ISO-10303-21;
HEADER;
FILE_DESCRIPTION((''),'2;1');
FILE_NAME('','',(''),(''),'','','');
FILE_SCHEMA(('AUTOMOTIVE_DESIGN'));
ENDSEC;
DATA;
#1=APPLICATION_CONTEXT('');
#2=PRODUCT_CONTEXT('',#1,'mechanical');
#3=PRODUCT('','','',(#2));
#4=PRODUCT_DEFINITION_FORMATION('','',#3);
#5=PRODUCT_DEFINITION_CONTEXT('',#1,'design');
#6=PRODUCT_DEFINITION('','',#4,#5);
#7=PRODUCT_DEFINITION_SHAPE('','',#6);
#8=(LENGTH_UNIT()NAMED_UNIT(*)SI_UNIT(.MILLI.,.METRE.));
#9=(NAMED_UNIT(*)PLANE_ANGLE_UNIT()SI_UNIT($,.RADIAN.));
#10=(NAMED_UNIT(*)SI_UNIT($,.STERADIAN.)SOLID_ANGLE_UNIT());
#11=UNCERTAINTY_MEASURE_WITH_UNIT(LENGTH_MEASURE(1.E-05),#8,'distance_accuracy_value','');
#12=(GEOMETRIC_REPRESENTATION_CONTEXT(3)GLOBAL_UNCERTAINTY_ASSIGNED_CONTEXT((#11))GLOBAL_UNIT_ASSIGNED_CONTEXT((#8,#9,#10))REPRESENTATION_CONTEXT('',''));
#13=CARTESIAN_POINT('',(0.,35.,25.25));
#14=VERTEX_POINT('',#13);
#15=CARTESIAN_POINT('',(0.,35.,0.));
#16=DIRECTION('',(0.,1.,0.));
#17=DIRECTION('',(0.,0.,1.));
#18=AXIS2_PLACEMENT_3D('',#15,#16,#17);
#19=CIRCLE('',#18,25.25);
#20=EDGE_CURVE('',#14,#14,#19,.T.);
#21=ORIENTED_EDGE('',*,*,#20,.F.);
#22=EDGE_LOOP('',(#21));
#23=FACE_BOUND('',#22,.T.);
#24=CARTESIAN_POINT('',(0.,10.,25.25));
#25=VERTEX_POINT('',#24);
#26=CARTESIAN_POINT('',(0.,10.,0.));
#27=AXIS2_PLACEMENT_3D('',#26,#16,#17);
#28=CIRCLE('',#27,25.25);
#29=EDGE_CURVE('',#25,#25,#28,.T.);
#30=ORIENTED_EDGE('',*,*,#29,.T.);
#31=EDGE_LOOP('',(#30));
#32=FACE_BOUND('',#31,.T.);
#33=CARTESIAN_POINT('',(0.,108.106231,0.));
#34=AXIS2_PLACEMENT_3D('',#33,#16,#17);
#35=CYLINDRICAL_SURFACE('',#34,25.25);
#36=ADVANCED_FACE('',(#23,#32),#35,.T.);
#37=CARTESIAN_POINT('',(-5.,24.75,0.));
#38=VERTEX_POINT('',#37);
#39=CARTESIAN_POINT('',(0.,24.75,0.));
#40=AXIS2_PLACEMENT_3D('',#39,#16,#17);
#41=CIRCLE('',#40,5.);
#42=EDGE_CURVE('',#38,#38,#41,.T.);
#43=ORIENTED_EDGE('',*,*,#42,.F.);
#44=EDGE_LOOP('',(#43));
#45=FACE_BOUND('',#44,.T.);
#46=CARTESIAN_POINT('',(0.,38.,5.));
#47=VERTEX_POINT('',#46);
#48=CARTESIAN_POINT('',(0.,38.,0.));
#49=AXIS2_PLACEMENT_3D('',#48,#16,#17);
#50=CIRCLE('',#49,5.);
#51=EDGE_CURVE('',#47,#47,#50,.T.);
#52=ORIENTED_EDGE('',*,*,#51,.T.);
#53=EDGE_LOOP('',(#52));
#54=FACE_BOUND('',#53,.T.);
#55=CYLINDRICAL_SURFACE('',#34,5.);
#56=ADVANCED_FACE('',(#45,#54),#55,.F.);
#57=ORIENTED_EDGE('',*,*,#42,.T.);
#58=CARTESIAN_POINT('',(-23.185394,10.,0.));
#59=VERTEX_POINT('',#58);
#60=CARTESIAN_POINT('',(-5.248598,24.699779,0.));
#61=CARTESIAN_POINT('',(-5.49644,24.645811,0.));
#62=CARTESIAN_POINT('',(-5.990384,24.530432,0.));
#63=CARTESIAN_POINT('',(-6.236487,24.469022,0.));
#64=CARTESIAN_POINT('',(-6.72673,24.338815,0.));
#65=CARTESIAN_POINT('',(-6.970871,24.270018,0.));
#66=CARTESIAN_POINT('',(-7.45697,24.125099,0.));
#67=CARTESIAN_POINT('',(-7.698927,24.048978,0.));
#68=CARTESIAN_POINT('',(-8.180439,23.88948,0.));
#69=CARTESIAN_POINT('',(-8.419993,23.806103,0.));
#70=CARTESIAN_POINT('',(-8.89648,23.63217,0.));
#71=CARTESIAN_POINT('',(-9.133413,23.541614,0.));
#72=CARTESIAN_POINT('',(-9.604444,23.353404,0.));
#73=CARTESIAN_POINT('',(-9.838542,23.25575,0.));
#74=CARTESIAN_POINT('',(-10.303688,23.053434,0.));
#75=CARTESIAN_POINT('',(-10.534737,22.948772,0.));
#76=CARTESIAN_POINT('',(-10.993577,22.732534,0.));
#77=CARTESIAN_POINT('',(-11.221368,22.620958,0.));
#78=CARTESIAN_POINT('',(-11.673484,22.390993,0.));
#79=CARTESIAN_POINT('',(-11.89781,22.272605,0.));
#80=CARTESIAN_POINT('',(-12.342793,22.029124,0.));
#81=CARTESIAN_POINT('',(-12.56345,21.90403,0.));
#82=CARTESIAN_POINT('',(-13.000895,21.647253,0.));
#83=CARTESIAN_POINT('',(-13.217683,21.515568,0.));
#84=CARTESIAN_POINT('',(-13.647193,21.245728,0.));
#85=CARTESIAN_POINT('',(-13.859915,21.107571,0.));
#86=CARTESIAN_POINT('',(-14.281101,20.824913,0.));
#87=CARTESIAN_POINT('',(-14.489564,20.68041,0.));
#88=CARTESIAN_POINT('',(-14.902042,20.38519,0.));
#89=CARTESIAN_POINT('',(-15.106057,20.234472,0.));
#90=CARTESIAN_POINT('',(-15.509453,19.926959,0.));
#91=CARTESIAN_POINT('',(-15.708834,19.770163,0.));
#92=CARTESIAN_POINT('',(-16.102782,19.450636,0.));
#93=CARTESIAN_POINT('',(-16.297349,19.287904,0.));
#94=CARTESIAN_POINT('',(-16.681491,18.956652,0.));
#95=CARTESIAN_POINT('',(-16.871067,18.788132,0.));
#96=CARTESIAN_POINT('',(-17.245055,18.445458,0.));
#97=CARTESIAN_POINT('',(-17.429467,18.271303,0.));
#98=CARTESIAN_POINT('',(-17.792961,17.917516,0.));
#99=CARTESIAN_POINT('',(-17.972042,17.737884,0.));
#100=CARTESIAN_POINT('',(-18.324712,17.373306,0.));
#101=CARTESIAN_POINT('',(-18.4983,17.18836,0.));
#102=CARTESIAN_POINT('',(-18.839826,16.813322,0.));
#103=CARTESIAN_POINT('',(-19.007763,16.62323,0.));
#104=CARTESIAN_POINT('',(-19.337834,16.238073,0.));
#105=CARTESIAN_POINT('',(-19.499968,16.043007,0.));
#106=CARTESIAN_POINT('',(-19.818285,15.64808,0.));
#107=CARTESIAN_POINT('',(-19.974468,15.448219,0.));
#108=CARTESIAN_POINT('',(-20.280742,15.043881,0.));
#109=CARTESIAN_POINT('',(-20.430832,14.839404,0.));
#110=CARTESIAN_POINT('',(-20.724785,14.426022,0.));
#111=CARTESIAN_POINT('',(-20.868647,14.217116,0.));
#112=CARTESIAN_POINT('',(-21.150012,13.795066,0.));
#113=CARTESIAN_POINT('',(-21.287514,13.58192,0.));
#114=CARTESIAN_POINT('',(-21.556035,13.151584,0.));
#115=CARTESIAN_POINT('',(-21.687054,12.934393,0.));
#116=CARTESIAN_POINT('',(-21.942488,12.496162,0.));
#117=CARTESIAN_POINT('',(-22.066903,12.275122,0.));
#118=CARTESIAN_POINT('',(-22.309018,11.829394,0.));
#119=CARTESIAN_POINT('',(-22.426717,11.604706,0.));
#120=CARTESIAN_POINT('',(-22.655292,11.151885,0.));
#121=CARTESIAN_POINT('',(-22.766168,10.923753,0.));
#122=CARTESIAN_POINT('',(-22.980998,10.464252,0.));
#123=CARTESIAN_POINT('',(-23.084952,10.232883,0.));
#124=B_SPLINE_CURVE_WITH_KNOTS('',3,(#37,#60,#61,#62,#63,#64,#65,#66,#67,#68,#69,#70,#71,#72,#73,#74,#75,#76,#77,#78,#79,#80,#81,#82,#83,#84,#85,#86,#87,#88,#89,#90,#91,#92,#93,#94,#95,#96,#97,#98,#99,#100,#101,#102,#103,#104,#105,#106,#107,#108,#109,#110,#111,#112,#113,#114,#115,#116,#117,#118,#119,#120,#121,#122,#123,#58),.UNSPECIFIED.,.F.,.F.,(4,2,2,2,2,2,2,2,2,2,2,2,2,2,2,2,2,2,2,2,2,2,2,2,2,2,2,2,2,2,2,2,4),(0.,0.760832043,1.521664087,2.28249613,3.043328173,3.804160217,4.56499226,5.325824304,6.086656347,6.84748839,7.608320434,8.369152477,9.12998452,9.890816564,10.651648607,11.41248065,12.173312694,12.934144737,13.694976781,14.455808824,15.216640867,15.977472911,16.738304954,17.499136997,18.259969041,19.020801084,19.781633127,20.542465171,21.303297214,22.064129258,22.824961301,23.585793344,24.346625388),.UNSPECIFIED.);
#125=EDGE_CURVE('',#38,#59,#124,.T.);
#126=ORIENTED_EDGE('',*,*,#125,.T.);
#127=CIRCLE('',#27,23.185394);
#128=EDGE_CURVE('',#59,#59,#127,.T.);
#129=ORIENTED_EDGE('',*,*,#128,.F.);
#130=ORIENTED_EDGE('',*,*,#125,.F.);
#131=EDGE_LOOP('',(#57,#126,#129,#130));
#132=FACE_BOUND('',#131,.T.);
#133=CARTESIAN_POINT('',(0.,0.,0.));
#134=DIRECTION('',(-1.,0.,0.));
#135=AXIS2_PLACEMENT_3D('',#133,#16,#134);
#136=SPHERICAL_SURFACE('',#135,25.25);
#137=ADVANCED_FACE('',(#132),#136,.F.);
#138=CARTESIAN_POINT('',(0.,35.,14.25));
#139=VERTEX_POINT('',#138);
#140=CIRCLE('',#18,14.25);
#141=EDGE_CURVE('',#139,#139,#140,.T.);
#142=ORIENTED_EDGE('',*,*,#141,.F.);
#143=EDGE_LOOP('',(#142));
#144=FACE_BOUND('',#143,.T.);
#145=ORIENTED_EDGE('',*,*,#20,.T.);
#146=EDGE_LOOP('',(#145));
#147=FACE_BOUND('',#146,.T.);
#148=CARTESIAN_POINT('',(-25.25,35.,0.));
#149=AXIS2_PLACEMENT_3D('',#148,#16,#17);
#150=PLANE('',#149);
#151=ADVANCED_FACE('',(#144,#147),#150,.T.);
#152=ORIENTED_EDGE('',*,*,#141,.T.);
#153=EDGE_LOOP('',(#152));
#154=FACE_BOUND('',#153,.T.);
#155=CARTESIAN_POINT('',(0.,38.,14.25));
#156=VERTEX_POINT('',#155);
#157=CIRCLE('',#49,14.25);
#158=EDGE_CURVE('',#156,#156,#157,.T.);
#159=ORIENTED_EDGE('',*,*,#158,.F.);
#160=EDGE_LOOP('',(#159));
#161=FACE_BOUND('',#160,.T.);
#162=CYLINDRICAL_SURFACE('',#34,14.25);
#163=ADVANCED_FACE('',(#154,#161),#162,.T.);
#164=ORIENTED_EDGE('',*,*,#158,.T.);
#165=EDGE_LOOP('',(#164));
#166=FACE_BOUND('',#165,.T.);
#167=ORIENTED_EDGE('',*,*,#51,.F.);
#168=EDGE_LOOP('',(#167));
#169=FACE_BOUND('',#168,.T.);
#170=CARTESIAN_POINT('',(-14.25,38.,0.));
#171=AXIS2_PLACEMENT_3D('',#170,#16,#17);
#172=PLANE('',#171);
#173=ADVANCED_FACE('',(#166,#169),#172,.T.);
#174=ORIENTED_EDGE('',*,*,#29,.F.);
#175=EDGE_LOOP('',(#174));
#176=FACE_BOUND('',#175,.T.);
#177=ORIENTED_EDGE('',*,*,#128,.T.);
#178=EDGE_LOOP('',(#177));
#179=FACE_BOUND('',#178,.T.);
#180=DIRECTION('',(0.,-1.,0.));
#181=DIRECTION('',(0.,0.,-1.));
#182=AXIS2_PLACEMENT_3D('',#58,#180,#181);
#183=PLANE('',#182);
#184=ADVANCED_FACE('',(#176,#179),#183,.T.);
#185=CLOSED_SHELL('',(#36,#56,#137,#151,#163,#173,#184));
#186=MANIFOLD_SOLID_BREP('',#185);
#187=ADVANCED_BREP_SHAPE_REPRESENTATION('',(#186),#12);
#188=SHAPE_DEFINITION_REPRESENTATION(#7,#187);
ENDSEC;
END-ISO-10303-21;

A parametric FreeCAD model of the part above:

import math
import FreeCAD as App
import Part
import Sketcher

doc = App.newDocument("Part")
body = doc.addObject("PartDesign::Body", "Body")

# Sketch on XY plane
sketch1 = body.newObject("Sketcher::SketchObject", "Sketch")
sketch1.AttachmentSupport = (doc.getObject("XY_Plane"), [""])
sketch1.MapMode = "FlatFace"
sketch1.addGeometry(Part.LineSegment(App.Vector(-25.2, 10, 0), App.Vector(-23.2, 10, 0)), False)
sketch1.addGeometry(Part.ArcOfCircle(Part.Circle(App.Vector(0, 0, 0), App.Vector(0, 0, 1), 25.2), math.radians(101), math.radians(157)), False)
sketch1.addGeometry(Part.LineSegment(App.Vector(-5, 24.8, 0), App.Vector(-5, 38, 0)), False)
sketch1.addGeometry(Part.LineSegment(App.Vector(-5, 38, 0), App.Vector(-14.2, 38, 0)), False)
sketch1.addGeometry(Part.LineSegment(App.Vector(-14.2, 38, 0), App.Vector(-14.2, 35, 0)), False)
sketch1.addGeometry(Part.LineSegment(App.Vector(-14.2, 35, 0), App.Vector(-25.2, 35, 0)), False)
sketch1.addGeometry(Part.LineSegment(App.Vector(-25.2, 35, 0), App.Vector(-25.2, 10, 0)), False)
sketch1.addConstraint(Sketcher.Constraint("Coincident", 0, 2, 1, 2))
sketch1.addConstraint(Sketcher.Constraint("Coincident", 1, 1, 2, 1))
sketch1.addConstraint(Sketcher.Constraint("Coincident", 2, 2, 3, 1))
sketch1.addConstraint(Sketcher.Constraint("Coincident", 3, 2, 4, 1))
sketch1.addConstraint(Sketcher.Constraint("Coincident", 4, 2, 5, 1))
sketch1.addConstraint(Sketcher.Constraint("Coincident", 5, 2, 6, 1))
sketch1.addConstraint(Sketcher.Constraint("Coincident", 6, 2, 0, 1))
sketch1.addConstraint(Sketcher.Constraint("Horizontal", 0))
sketch1.addConstraint(Sketcher.Constraint("Vertical", 2))
sketch1.addConstraint(Sketcher.Constraint("Horizontal", 3))
sketch1.addConstraint(Sketcher.Constraint("Vertical", 4))
sketch1.addConstraint(Sketcher.Constraint("Horizontal", 5))
sketch1.addConstraint(Sketcher.Constraint("Vertical", 6))
sketch1.addConstraint(Sketcher.Constraint("Coincident", 1, 3, -1, 1))
sketch1.addConstraint(Sketcher.Constraint("DistanceX", 5, 2, 5, 1, 11.0))
sketch1.addConstraint(Sketcher.Constraint("DistanceY", 4, 2, 4, 1, 3.0))
sketch1.addConstraint(Sketcher.Constraint("DistanceY", 6, 2, 6, 1, 25.0))
sketch1.addConstraint(Sketcher.Constraint("Radius", 1, 25.25))
sketch1.addConstraint(Sketcher.Constraint("DistanceY", -1, 1, 0, 2, 10.0))
sketch1.addConstraint(Sketcher.Constraint("DistanceX", 1, 1, -1, 1, 5.0))
sketch1.addConstraint(Sketcher.Constraint("DistanceX", 3, 2, 3, 1, 9.25))
revolution = body.newObject("PartDesign::Revolution", "Revolution")
revolution.Profile = sketch1
revolution.ReferenceAxis = (sketch1, ["V_Axis"])
revolution.Angle = 360

doc.recompute()
